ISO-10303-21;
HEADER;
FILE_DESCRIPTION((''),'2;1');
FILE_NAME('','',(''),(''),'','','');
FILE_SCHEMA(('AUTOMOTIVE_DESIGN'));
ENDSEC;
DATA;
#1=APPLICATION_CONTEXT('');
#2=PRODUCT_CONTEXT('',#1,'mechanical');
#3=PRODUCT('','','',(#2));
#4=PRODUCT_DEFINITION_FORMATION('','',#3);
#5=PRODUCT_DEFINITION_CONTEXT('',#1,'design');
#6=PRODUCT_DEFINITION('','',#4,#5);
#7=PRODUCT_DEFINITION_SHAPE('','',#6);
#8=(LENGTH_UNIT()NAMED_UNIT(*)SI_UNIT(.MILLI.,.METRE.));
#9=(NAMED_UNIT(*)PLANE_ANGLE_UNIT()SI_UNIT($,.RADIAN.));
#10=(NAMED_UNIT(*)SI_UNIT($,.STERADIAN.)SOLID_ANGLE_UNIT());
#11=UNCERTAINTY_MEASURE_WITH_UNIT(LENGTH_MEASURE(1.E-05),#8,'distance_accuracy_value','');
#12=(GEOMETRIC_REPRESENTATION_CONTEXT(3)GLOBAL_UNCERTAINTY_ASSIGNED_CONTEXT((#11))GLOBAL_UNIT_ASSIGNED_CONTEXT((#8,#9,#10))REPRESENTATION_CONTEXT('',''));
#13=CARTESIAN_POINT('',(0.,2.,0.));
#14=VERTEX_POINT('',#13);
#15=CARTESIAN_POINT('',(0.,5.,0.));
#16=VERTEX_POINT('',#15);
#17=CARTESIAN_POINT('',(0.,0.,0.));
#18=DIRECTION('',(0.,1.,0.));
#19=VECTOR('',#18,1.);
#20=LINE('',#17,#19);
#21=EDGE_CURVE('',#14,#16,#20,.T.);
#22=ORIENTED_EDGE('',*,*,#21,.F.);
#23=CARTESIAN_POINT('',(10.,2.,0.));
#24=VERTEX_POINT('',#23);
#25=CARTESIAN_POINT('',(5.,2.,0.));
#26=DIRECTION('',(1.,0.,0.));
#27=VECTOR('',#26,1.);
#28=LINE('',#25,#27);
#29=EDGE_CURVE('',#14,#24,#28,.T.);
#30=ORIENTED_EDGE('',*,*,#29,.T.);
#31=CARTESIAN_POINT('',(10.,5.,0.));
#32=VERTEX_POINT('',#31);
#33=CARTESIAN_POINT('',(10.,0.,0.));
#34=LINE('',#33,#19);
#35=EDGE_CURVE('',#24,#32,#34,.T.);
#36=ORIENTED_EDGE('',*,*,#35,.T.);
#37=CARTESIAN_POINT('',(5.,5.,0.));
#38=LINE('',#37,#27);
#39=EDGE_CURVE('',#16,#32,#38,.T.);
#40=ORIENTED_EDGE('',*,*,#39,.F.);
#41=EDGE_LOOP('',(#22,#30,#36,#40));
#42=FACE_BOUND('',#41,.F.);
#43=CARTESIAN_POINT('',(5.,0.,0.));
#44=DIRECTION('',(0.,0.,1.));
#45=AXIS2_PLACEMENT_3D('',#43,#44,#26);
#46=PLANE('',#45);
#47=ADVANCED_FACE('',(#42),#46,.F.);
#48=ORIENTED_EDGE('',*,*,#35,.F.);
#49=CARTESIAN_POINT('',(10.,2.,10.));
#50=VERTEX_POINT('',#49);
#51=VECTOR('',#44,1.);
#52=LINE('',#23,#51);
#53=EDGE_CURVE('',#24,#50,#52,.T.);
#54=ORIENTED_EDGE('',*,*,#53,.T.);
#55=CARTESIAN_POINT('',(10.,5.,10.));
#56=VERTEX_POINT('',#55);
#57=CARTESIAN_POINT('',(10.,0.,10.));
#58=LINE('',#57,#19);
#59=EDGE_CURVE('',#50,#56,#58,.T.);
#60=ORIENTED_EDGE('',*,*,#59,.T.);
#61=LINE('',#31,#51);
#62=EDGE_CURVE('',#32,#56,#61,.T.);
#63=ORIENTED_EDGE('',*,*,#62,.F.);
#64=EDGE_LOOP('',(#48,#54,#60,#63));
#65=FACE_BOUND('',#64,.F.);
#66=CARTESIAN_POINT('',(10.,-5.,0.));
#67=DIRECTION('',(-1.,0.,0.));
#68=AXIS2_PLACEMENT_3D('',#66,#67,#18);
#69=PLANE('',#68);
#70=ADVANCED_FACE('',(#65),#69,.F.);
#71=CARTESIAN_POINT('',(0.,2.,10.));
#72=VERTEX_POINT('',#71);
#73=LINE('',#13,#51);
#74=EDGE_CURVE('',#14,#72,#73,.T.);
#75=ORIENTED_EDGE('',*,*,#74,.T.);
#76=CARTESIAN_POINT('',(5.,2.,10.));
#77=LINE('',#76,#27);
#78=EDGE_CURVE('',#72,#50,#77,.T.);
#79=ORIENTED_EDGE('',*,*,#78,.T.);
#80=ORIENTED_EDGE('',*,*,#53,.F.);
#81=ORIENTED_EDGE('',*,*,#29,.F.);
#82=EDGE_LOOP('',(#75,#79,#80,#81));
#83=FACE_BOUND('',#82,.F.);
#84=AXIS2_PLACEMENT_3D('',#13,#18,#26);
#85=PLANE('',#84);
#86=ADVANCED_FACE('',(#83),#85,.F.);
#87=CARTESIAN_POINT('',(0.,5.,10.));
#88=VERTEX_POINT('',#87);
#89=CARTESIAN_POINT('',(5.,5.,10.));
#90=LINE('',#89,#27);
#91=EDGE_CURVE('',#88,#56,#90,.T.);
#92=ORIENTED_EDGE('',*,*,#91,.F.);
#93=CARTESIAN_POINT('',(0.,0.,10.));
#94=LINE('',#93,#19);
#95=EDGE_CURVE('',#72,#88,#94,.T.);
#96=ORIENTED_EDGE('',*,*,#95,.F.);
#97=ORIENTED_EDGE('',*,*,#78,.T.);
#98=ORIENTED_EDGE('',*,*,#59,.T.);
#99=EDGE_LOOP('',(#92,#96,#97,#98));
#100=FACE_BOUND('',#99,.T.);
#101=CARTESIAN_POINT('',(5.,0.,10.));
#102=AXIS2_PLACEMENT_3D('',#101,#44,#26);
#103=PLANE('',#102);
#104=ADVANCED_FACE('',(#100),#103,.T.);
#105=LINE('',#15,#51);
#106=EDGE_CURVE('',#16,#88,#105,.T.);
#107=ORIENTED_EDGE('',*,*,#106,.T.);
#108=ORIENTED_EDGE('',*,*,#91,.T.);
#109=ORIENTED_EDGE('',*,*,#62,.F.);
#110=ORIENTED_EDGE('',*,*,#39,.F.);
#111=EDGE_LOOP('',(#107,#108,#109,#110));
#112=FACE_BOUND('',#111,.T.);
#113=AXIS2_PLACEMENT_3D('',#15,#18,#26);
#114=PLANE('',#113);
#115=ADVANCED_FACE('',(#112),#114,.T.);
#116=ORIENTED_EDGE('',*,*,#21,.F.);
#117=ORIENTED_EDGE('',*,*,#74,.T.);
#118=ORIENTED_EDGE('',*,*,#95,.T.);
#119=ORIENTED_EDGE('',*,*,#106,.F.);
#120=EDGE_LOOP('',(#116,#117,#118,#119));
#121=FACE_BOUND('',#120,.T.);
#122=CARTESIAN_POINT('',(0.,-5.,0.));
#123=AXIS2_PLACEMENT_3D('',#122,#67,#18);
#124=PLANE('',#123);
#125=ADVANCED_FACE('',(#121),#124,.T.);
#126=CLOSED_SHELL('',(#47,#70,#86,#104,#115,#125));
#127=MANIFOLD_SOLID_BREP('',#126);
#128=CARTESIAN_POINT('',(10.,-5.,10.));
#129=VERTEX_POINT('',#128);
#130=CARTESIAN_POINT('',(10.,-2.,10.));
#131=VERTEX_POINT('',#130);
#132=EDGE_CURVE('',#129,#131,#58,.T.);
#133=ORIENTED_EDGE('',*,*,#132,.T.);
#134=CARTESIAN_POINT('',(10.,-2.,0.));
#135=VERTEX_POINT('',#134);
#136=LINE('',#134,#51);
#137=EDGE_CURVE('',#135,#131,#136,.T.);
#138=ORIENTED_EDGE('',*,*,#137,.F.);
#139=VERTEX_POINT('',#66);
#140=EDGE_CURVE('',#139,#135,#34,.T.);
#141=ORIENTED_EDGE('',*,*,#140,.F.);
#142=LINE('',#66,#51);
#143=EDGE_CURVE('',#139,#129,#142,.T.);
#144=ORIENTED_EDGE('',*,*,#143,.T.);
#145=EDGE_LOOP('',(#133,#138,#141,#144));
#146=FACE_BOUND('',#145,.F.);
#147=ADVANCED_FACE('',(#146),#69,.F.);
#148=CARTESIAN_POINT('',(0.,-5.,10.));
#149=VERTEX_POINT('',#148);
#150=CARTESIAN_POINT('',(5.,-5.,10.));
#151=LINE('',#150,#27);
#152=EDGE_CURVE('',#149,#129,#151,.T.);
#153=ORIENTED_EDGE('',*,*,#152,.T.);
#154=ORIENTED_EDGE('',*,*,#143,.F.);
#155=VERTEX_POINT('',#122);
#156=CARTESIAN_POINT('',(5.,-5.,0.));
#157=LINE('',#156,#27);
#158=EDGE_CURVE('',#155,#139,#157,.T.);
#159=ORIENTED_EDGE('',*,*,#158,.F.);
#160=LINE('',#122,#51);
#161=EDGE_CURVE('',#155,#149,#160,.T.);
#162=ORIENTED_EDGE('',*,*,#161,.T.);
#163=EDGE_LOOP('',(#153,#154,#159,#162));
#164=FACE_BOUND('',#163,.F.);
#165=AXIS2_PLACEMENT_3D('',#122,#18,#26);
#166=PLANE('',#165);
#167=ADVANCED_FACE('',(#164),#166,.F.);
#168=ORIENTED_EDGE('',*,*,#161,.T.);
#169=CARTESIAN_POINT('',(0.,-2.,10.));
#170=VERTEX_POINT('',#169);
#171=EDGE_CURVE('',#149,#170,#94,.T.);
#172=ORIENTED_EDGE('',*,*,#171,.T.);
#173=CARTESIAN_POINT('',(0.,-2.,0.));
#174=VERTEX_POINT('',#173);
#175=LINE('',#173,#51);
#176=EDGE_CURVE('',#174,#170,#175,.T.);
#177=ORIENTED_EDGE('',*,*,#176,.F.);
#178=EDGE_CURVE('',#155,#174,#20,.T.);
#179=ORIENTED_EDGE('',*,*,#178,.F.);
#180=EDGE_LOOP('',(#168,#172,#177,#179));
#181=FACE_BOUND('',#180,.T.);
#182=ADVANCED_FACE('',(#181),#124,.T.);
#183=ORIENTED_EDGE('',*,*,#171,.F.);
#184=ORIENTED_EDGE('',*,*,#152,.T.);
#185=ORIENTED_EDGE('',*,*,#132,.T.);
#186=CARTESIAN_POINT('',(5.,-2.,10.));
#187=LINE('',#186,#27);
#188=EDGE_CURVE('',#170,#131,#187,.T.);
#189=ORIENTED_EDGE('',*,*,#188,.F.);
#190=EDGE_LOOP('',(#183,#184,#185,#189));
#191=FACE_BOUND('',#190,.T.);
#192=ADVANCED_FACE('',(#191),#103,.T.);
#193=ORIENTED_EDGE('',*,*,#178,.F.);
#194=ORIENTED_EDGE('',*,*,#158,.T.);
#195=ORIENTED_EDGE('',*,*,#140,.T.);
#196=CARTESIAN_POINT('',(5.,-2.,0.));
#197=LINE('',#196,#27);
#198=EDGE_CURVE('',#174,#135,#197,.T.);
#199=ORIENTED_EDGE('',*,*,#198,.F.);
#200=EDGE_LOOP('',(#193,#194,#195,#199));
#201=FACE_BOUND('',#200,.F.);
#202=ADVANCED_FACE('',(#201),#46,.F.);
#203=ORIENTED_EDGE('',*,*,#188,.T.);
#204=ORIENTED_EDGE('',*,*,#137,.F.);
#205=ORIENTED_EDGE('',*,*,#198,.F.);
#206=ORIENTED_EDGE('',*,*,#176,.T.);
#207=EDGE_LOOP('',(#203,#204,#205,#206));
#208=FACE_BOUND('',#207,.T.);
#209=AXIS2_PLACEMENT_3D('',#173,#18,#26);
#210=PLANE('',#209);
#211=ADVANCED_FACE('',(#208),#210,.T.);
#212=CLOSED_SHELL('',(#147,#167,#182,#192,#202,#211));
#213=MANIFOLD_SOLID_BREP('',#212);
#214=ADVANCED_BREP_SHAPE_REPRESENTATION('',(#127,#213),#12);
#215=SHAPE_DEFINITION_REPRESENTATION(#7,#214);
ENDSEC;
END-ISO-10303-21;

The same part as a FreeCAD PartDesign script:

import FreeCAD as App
import Part
import Sketcher
from FreeCAD import Vector
Q = App.Units.Quantity


def add_polygon(sketch, points):
    """Adds a closed chain of lines whose ends are joined by coincident constraints."""
    first, n = sketch.GeometryCount, len(points)
    for a, b in zip(points, points[1:] + points[:1]):
        sketch.addGeometry(Part.LineSegment(App.Vector(*a, 0), App.Vector(*b, 0)), False)
    for i in range(n):
        sketch.addConstraint(Sketcher.Constraint("Coincident", first + i, 2, first + (i + 1) % n, 1))

doc = App.newDocument("Part")
params = doc.addObject("Spreadsheet::Sheet", "Params")
for row, (alias, value) in enumerate([
    ("sketch1_width", "10 mm"),
    ("sketch1_height", "4 mm"),
    ("pad1_length", "10 mm"),
    ("sketch2_width", "10 mm"),
    ("pad2_length", "10 mm"),
], start=1):
    params.set(f"A{row}", alias)
    params.set(f"B{row}", "=" + value)
    params.setAlias(f"B{row}", alias)

body = doc.addObject("PartDesign::Body", "Body")

# Sketch on XY plane
sketch1 = body.newObject("Sketcher::SketchObject", "Sketch")
sketch1.AttachmentSupport = (doc.getObject("XY_Plane"), [""])
sketch1.MapMode = "FlatFace"
add_polygon(sketch1, [(0, 2), (0, -2), (10, -2), (10, 2)])  # lines 0-3
sketch1.addConstraint([
    Sketcher.Constraint("Vertical", 0),
    Sketcher.Constraint("Horizontal", 1),
    Sketcher.Constraint("Vertical", 2),
    Sketcher.Constraint("Horizontal", 3),
    Sketcher.Constraint("Symmetric", 0, 2, 3, 2, -1, 1),
    Sketcher.Constraint("DistanceX", 1, 1, 1, 2, Q("10 mm")),
    Sketcher.Constraint("DistanceY", 0, 2, 0, 1, Q("4 mm")),
])
sketch1.setExpression("Constraints[9]", "Params.sketch1_width")
sketch1.setExpression("Constraints[10]", "Params.sketch1_height")
pad1 = body.newObject("PartDesign::Pad", "Pad")
pad1.Profile = sketch1
pad1.setExpression("Length", "Params.pad1_length")
body2 = doc.addObject("PartDesign::Body", "Body001")
body2.AllowCompound = True

# Sketch on XY plane
sketch2 = body2.newObject("Sketcher::SketchObject", "Sketch001")
sketch2.AttachmentSupport = (doc.getObject("XY_Plane001"), [""])
sketch2.MapMode = "FlatFace"
add_polygon(sketch2, [(0, 5), (0, -5), (10, -5), (10, 5)])  # lines 0-3
sketch2.addConstraint([
    Sketcher.Constraint("Vertical", 0),
    Sketcher.Constraint("Horizontal", 1),
    Sketcher.Constraint("Vertical", 2),
    Sketcher.Constraint("Horizontal", 3),
    Sketcher.Constraint("Symmetric", 0, 2, 3, 2, -1, 1),
    Sketcher.Constraint("Equal", 3, 0),
    Sketcher.Constraint("DistanceX", 1, 1, 1, 2, Q("10 mm")),
])
sketch2.setExpression("Constraints[10]", "Params.sketch2_width")
pad2 = body2.newObject("PartDesign::Pad", "Pad001")
pad2.Profile = sketch2
pad2.setExpression("Length", "Params.pad2_length")
doc.recompute()

boolean = body2.newObject("PartDesign::Boolean", "Boolean")
boolean.Type = "Cut"
boolean.addObjects([body])

doc.recompute()
